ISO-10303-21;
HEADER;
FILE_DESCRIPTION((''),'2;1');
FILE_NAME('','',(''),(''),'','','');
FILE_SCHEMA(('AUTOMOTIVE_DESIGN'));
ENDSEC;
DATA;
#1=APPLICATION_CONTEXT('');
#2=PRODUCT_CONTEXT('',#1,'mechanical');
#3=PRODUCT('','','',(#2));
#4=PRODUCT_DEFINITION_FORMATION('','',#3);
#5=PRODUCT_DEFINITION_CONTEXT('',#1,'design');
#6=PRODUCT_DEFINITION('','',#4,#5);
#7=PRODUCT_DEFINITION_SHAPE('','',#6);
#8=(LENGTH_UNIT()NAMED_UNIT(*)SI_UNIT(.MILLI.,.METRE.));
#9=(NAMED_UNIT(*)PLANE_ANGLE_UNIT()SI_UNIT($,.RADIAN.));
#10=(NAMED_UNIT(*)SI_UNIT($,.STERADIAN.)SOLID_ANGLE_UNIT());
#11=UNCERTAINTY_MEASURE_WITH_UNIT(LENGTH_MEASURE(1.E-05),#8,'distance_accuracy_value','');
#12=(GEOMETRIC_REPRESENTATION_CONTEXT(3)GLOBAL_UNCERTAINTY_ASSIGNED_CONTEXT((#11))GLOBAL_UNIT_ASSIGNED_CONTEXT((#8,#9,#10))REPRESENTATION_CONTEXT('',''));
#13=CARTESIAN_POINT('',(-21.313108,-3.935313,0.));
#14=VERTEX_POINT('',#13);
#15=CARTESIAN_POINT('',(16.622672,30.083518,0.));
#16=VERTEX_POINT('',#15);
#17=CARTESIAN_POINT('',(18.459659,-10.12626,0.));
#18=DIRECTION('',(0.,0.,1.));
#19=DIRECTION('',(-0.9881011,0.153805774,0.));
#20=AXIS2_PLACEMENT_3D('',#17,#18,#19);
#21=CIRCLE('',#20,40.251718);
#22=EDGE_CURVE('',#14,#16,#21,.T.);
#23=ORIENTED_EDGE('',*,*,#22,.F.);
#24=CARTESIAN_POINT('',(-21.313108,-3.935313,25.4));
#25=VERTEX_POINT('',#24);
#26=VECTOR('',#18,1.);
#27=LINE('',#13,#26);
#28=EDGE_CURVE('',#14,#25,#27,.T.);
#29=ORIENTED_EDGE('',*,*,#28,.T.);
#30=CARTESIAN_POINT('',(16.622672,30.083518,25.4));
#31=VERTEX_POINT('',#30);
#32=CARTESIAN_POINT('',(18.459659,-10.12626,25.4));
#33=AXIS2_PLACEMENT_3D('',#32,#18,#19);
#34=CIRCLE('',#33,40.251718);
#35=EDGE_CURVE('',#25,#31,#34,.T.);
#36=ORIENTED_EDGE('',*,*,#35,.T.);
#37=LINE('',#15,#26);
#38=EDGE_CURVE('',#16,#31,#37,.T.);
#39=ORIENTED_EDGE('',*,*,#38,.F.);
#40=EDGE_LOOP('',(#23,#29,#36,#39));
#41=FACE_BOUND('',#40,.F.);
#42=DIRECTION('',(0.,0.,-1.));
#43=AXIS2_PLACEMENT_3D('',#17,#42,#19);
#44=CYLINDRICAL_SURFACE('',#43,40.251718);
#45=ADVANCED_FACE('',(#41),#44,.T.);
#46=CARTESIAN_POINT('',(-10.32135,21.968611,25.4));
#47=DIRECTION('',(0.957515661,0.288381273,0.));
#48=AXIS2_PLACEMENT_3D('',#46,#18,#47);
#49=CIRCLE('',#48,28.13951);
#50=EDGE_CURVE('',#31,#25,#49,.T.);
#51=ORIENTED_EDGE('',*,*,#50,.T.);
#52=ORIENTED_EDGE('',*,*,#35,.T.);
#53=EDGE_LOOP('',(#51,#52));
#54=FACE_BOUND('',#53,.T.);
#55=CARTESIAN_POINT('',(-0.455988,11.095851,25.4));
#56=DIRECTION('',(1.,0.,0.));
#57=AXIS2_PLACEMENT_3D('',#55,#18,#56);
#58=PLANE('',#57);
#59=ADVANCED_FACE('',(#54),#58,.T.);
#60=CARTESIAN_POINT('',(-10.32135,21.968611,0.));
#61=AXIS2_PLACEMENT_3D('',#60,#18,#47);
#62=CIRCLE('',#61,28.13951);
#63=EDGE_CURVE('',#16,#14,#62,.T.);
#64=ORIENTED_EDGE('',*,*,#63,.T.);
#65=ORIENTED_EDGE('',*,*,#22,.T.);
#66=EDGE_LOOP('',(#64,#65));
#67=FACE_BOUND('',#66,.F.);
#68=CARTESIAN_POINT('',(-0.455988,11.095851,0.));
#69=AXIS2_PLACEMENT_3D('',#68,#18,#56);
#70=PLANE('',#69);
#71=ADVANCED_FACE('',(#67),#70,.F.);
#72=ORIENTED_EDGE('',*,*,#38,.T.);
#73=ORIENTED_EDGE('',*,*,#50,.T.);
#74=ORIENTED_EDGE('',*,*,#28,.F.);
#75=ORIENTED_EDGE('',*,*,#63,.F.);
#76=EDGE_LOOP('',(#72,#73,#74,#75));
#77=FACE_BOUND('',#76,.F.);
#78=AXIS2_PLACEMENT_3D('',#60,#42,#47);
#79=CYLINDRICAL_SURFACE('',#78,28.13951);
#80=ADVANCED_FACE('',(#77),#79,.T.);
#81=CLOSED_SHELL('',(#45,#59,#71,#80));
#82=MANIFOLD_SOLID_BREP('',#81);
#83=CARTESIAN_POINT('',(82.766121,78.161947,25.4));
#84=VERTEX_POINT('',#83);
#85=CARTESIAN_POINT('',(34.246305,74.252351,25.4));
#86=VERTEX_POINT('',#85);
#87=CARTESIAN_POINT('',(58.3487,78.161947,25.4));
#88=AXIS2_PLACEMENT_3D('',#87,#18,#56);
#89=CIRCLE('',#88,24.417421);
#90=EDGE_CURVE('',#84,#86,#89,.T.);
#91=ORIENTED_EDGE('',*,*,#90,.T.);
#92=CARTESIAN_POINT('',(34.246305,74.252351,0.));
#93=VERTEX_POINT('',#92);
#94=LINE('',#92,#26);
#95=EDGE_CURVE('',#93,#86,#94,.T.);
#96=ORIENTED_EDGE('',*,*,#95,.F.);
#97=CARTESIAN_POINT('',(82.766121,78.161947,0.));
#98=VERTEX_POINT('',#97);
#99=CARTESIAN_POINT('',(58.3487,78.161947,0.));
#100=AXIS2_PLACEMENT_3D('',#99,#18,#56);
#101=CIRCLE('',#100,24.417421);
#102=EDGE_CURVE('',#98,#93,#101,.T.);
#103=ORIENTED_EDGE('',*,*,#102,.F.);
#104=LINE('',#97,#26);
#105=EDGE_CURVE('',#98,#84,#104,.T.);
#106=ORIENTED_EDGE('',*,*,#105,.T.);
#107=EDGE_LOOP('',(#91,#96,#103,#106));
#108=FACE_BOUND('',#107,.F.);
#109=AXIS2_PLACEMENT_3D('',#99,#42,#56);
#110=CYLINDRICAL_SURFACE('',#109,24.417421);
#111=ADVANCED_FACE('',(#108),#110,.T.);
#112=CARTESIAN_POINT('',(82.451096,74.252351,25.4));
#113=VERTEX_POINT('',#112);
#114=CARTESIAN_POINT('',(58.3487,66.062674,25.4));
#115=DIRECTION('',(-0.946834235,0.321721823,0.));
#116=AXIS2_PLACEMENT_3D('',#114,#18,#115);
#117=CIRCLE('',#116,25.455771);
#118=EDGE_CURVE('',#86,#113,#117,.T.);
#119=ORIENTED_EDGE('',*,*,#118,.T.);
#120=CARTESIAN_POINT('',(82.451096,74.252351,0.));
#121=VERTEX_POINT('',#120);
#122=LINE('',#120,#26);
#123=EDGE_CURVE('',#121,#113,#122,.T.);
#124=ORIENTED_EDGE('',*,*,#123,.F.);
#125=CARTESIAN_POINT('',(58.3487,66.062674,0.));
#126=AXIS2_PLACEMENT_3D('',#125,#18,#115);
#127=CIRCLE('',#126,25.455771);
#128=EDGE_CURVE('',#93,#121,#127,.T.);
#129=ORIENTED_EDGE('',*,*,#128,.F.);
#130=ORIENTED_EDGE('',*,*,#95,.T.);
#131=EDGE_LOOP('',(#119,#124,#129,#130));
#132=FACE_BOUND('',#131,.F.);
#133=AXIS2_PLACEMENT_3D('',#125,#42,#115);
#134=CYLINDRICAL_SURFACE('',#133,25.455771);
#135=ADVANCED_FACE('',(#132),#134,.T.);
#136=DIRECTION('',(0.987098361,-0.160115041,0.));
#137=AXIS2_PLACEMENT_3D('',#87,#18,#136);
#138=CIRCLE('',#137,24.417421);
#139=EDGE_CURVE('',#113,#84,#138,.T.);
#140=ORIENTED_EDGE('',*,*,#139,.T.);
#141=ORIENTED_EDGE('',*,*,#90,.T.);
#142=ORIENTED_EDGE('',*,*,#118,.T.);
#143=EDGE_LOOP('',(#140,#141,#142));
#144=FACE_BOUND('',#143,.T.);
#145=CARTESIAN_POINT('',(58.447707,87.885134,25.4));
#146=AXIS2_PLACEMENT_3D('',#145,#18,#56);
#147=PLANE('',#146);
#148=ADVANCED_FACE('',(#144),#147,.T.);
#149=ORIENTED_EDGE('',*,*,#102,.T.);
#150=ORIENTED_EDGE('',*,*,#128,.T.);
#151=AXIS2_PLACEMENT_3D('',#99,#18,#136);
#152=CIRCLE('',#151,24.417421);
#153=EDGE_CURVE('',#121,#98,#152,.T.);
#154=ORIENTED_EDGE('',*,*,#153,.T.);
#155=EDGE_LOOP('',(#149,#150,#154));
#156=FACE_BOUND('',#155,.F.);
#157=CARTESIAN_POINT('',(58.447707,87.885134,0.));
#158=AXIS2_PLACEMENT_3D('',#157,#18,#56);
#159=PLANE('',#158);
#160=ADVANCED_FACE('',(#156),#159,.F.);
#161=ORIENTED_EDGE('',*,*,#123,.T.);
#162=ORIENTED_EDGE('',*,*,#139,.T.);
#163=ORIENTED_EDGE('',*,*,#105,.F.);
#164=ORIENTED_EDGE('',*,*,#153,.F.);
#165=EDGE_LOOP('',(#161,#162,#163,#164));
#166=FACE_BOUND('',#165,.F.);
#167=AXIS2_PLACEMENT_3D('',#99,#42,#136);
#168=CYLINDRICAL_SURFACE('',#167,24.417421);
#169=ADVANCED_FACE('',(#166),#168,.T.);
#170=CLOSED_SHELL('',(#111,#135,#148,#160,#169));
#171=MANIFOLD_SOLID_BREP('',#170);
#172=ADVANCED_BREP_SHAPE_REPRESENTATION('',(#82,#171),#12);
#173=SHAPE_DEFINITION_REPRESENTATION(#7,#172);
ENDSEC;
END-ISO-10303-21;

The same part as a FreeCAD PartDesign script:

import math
import FreeCAD as App
import Part
import Sketcher

doc = App.newDocument("Part")
params = doc.addObject("Spreadsheet::Sheet", "Params")
for row, (alias, value) in enumerate([
    ("pad1_length", "1 in"),
    ("pad2_length", "1 in"),
], start=1):
    params.set(f"A{row}", alias)
    params.set(f"B{row}", "=" + value)
    params.setAlias(f"B{row}", alias)

body = doc.addObject("PartDesign::Body", "Body")

sketch1 = body.newObject("Sketcher::SketchObject", "Sketch")
sketch1.AttachmentSupport = (doc.getObject("XY_Plane"), [""])
sketch1.MapMode = "FlatFace"
sketch1.addGeometry([
    Part.ArcOfCircle(Part.Circle(App.Vector(18.459659, -10.12626, 0), App.Vector(0, 0, 1), 40.251718), math.radians(171.152458), math.radians(452.615744)),
    Part.ArcOfCircle(Part.Circle(App.Vector(-10.32135, 21.968611, 0), App.Vector(0, 0, 1), 28.13951), math.radians(16.76107), math.radians(247.007132)),
], False)
sketch1.addConstraint([
    Sketcher.Constraint("Coincident", 0, 1, 1, 2),
    Sketcher.Constraint("Coincident", 1, 1, 0, 2),
    Sketcher.Constraint("Radius", 0, 40.251718),
    Sketcher.Constraint("Radius", 1, 28.13951),
    Sketcher.Constraint("DistanceX", -1, 1, 0, 3, 18.459659),
    Sketcher.Constraint("DistanceY", 0, 3, -1, 1, 10.12626),
    Sketcher.Constraint("DistanceX", 1, 3, -1, 1, 10.32135),
    Sketcher.Constraint("DistanceY", -1, 1, 1, 3, 21.968611),
])
pad1 = body.newObject("PartDesign::Pad", "Pad")
pad1.Profile = sketch1
pad1.setExpression("Length", "Params.pad1_length")
body2 = doc.addObject("PartDesign::Body", "Body001")

sketch2 = body2.newObject("Sketcher::SketchObject", "Sketch001")
sketch2.AttachmentSupport = (doc.getObject("XY_Plane001"), [""])
sketch2.MapMode = "FlatFace"
sketch2.addGeometry([
    Part.ArcOfCircle(Part.Circle(App.Vector(58.3487, 78.161947, 0), App.Vector(0, 0, 1), 24.417421), math.radians(-9.213574), math.radians(0)),
    Part.ArcOfCircle(Part.Circle(App.Vector(58.3487, 78.161947, 0), App.Vector(0, 0, 1), 24.417421), math.radians(0), math.radians(189.213574)),
    Part.ArcOfCircle(Part.Circle(App.Vector(58.3487, 66.062674, 0), App.Vector(0, 0, 1), 25.455771), math.radians(161.232915), math.radians(378.767085)),
], False)
sketch2.addConstraint([
    Sketcher.Constraint("Tangent", 0, 2, 1, 1),
    Sketcher.Constraint("Coincident", 1, 2, 2, 1),
    Sketcher.Constraint("Coincident", 2, 2, 0, 1),
    Sketcher.Constraint("Equal", 0, 1),
    Sketcher.Constraint("Horizontal", 1, 3, 0, 2),
    Sketcher.Constraint("Horizontal", 1, 2, 2, 2),
    Sketcher.Constraint("Radius", 0, 24.417421),
    Sketcher.Constraint("Radius", 2, 25.455771),
    Sketcher.Constraint("DistanceX", -1, 1, 0, 3, 58.3487),
    Sketcher.Constraint("DistanceY", -1, 1, 1, 2, 74.252351),
    Sketcher.Constraint("DistanceX", 1, 2, 2, 2, 48.204792),
])
pad2 = body2.newObject("PartDesign::Pad", "Pad001")
pad2.Profile = sketch2
pad2.setExpression("Length", "Params.pad2_length")

doc.recompute()
